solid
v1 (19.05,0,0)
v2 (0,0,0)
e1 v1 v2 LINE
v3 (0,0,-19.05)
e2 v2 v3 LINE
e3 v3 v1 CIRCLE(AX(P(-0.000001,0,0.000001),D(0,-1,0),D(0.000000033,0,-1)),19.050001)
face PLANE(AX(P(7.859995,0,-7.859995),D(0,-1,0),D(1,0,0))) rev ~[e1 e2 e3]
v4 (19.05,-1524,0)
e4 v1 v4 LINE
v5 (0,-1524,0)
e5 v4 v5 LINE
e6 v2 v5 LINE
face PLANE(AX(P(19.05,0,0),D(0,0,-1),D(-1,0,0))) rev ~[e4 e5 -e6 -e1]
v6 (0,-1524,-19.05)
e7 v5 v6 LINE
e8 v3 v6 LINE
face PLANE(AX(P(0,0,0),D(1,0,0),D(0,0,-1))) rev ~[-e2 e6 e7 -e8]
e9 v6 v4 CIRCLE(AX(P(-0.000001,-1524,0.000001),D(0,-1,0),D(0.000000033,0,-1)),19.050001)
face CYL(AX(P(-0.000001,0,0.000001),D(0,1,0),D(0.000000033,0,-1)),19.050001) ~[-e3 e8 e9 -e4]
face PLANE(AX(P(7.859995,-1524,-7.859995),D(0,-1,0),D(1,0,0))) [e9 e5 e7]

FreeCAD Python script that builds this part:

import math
import FreeCAD as App
import Part
import Sketcher
Q = App.Units.Quantity

doc = App.newDocument("Part")
params = doc.addObject("Spreadsheet::Sheet", "Params")
for row, (alias, value) in enumerate([
    ("sketch1_radius", "0.75 in"),
    ("pad1_length", "60 in"),
], start=1):
    params.set(f"A{row}", alias)
    params.set(f"B{row}", "=" + value)
    params.setAlias(f"B{row}", alias)

body = doc.addObject("PartDesign::Body", "Body")

# Sketch on XZ plane
sketch1 = doc.addObject("Sketcher::SketchObject", "Sketch")
body.addObject(sketch1)
sketch1.AttachmentSupport = (doc.XZ_Plane, [""])
sketch1.MapMode = "FlatFace"
sketch1.addGeometry(Part.LineSegment(App.Vector(19, 0, 0), App.Vector(0, 0, 0)), False)
sketch1.addGeometry(Part.LineSegment(App.Vector(0, 0, 0), App.Vector(0, -19, 0)), False)
sketch1.addGeometry(Part.ArcOfCircle(Part.Circle(App.Vector(0, 0, 0), App.Vector(0, 0, 1), 19), math.radians(-90), math.radians(0)), False)
sketch1.addConstraint(Sketcher.Constraint("Coincident", 0, 2, 1, 1))
sketch1.addConstraint(Sketcher.Constraint("Coincident", 1, 2, 2, 1))
sketch1.addConstraint(Sketcher.Constraint("Coincident", 2, 2, 0, 1))
sketch1.addConstraint(Sketcher.Constraint("Horizontal", 0))
sketch1.addConstraint(Sketcher.Constraint("Vertical", 1))
sketch1.addConstraint(Sketcher.Constraint("Coincident", 2, 3, -1, 1))
sketch1.addConstraint(Sketcher.Constraint("Coincident", 0, 2, -1, 1))
sketch1.addConstraint(Sketcher.Constraint("Radius", 2, Q("0.75 in")))
sketch1.setExpression("Constraints[7]", "Params.sketch1_radius")
pad1 = doc.addObject("PartDesign::Pad", "Pad")
body.addObject(pad1)
pad1.Profile = sketch1
pad1.setExpression("Length", "Params.pad1_length")

doc.recompute()
